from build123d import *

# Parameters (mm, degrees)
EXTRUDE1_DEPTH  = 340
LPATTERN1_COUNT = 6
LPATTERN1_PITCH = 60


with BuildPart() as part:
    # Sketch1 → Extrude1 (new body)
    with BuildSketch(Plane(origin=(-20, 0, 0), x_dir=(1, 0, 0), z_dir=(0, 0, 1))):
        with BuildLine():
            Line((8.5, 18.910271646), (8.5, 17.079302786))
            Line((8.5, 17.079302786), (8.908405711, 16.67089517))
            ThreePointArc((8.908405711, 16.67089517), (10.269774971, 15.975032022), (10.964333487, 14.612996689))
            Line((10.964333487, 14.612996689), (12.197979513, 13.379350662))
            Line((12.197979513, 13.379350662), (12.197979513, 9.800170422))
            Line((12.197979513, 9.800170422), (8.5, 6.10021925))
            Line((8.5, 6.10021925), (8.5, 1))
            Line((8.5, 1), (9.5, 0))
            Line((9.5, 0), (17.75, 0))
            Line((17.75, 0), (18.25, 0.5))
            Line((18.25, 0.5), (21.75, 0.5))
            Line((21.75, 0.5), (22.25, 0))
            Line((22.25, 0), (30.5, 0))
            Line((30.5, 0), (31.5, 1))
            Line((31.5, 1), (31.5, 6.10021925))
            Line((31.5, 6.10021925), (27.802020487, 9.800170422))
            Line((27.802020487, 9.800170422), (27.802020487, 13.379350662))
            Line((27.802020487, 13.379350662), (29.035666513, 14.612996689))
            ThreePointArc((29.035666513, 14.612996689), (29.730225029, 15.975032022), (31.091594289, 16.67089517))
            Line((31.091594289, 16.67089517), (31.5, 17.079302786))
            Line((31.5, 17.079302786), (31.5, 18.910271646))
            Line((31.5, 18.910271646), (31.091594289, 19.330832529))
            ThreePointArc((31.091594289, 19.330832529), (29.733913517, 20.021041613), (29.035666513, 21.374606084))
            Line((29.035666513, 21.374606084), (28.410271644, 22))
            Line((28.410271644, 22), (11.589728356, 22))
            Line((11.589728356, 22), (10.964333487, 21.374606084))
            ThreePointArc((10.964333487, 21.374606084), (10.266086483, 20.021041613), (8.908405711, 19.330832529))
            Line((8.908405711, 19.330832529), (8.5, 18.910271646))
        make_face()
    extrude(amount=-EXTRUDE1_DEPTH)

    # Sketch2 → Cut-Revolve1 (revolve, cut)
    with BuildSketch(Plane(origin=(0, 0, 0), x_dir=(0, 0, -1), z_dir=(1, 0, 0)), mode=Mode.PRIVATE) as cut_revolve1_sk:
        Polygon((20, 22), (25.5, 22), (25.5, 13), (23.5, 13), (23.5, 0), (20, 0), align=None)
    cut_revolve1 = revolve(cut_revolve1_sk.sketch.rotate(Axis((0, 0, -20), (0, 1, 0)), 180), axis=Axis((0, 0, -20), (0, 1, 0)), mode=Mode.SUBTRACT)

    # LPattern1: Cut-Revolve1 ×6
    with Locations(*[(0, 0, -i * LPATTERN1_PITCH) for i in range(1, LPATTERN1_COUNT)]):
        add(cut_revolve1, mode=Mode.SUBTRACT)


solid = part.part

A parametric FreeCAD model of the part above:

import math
import FreeCAD as App
import Part
import Sketcher

V = App.Vector


def add_polygon(sketch, points):
    """Adds a closed chain of lines whose ends are joined by coincident constraints."""
    first, n = sketch.GeometryCount, len(points)
    for a, b in zip(points, points[1:] + points[:1]):
        sketch.addGeometry(Part.LineSegment(App.Vector(*a, 0), App.Vector(*b, 0)), False)
    for i in range(n):
        sketch.addConstraint(Sketcher.Constraint("Coincident", first + i, 2, first + (i + 1) % n, 1))

doc = App.newDocument("Part")
body = doc.addObject("PartDesign::Body", "Body")

# Sketch on XY plane
sketch1 = body.newObject("Sketcher::SketchObject", "Sketch")
sketch1.AttachmentSupport = (doc.getObject("XY_Plane"), [""])
sketch1.MapMode = "FlatFace"
sketch1.addGeometry([
    Part.LineSegment(V(-11.5, 18.910272, 0), V(-11.5, 17.079303, 0)),  # 0
    Part.LineSegment(V(-11.5, 17.079303, 0), V(-11.091594, 16.670895, 0)),  # 1
    Part.ArcOfCircle(Part.Circle(V(-11.484689, 14.222248, 0), V(0, 0, 1), 2.48), math.radians(9.065302), math.radians(80.879803)),  # 2
    Part.LineSegment(V(-9.035667, 14.612997, 0), V(-7.80202, 13.379351, 0)),  # 3
    Part.LineSegment(V(-7.80202, 13.379351, 0), V(-7.80202, 9.80017, 0)),  # 4
    Part.LineSegment(V(-7.80202, 9.80017, 0), V(-11.5, 6.100219, 0)),  # 5
    Part.LineSegment(V(-11.5, 6.100219, 0), V(-11.5, 1, 0)),  # 6
    Part.LineSegment(V(-11.5, 1, 0), V(-10.5, 0, 0)),  # 7
    Part.LineSegment(V(-10.5, 0, 0), V(-2.25, 0, 0)),  # 8
    Part.LineSegment(V(-2.25, 0, 0), V(-1.75, 0.5, 0)),  # 9
    Part.LineSegment(V(-1.75, 0.5, 0), V(1.75, 0.5, 0)),  # 10
    Part.LineSegment(V(1.75, 0.5, 0), V(2.25, 0, 0)),  # 11
    Part.LineSegment(V(2.25, 0, 0), V(10.5, 0, 0)),  # 12
    Part.LineSegment(V(10.5, 0, 0), V(11.5, 1, 0)),  # 13
    Part.LineSegment(V(11.5, 1, 0), V(11.5, 6.100219, 0)),  # 14
    Part.LineSegment(V(11.5, 6.100219, 0), V(7.80202, 9.80017, 0)),  # 15
    Part.LineSegment(V(7.80202, 9.80017, 0), V(7.80202, 13.379351, 0)),  # 16
    Part.LineSegment(V(7.80202, 13.379351, 0), V(9.035667, 14.612997, 0)),  # 17
    Part.ArcOfCircle(Part.Circle(V(11.484689, 14.222248, 0), V(0, 0, 1), 2.48), math.radians(99.120197), math.radians(170.934698)),  # 18
    Part.LineSegment(V(11.091594, 16.670895, 0), V(11.5, 17.079303, 0)),  # 19
    Part.LineSegment(V(11.5, 17.079303, 0), V(11.5, 18.910272, 0)),  # 20
    Part.LineSegment(V(11.5, 18.910272, 0), V(11.091594, 19.330833, 0)),  # 21
    Part.ArcOfCircle(Part.Circle(V(11.482331, 21.779857, 0), V(0, 0, 1), 2.48), math.radians(-170.595249), math.radians(-99.065027)),  # 22
    Part.LineSegment(V(9.035667, 21.374606, 0), V(8.410272, 22, 0)),  # 23
    Part.LineSegment(V(8.410272, 22, 0), V(-8.410272, 22, 0)),  # 24
    Part.LineSegment(V(-8.410272, 22, 0), V(-9.035667, 21.374606, 0)),  # 25
    Part.ArcOfCircle(Part.Circle(V(-11.482331, 21.779857, 0), V(0, 0, 1), 2.48), math.radians(-80.934973), math.radians(-9.404751)),  # 26
    Part.LineSegment(V(-11.091594, 19.330833, 0), V(-11.5, 18.910272, 0)),  # 27
], False)
sketch1.addConstraint([
    Sketcher.Constraint("Coincident", 0, 2, 1, 1),
    Sketcher.Constraint("Coincident", 1, 2, 2, 2),
    Sketcher.Constraint("Coincident", 2, 1, 3, 1),
    Sketcher.Constraint("Coincident", 3, 2, 4, 1),
    Sketcher.Constraint("Coincident", 4, 2, 5, 1),
    Sketcher.Constraint("Coincident", 5, 2, 6, 1),
    Sketcher.Constraint("Coincident", 6, 2, 7, 1),
    Sketcher.Constraint("Coincident", 7, 2, 8, 1),
    Sketcher.Constraint("Coincident", 8, 2, 9, 1),
    Sketcher.Constraint("Coincident", 9, 2, 10, 1),
    Sketcher.Constraint("Coincident", 10, 2, 11, 1),
    Sketcher.Constraint("Coincident", 11, 2, 12, 1),
    Sketcher.Constraint("Coincident", 12, 2, 13, 1),
    Sketcher.Constraint("Coincident", 13, 2, 14, 1),
    Sketcher.Constraint("Coincident", 14, 2, 15, 1),
    Sketcher.Constraint("Coincident", 15, 2, 16, 1),
    Sketcher.Constraint("Coincident", 16, 2, 17, 1),
    Sketcher.Constraint("Coincident", 17, 2, 18, 2),
    Sketcher.Constraint("Coincident", 18, 1, 19, 1),
    Sketcher.Constraint("Coincident", 19, 2, 20, 1),
    Sketcher.Constraint("Coincident", 20, 2, 21, 1),
    Sketcher.Constraint("Coincident", 21, 2, 22, 2),
    Sketcher.Constraint("Coincident", 22, 1, 23, 1),
    Sketcher.Constraint("Coincident", 23, 2, 24, 1),
    Sketcher.Constraint("Coincident", 24, 2, 25, 1),
    Sketcher.Constraint("Coincident", 25, 2, 26, 2),
    Sketcher.Constraint("Coincident", 26, 1, 27, 1),
    Sketcher.Constraint("Coincident", 27, 2, 0, 1),
    Sketcher.Constraint("Vertical", 0),
    Sketcher.Constraint("Vertical", 4),
    Sketcher.Constraint("Vertical", 6),
    Sketcher.Constraint("Horizontal", 8),
    Sketcher.Constraint("Horizontal", 10),
    Sketcher.Constraint("Horizontal", 12),
    Sketcher.Constraint("Vertical", 14),
    Sketcher.Constraint("Vertical", 16),
    Sketcher.Constraint("Vertical", 20),
    Sketcher.Constraint("Horizontal", 24),
    Sketcher.Constraint("Equal", 2, 18),
    Sketcher.Constraint("Equal", 18, 22),
    Sketcher.Constraint("Equal", 22, 26),
    Sketcher.Constraint("Symmetric", 8, 2, 11, 2, -1, 1),
    Sketcher.Constraint("Symmetric", 2, 3, 18, 3, -2),
    Sketcher.Constraint("Symmetric", 22, 3, 26, 3, -2),
    Sketcher.Constraint("Symmetric", 7, 2, 12, 2, -2),
    Sketcher.Constraint("Symmetric", 6, 2, 13, 2, -2),
    Sketcher.Constraint("Symmetric", 4, 2, 15, 2, -2),
    Sketcher.Constraint("Symmetric", 0, 2, 19, 2, -2),
    Sketcher.Constraint("Parallel", 3, 7),
    Sketcher.Constraint("Perpendicular", 7, 9),
    Sketcher.Constraint("Perpendicular", 9, 11),
    Sketcher.Constraint("Perpendicular", 11, 13),
    Sketcher.Constraint("Parallel", 13, 17),
    Sketcher.Constraint("Perpendicular", 19, 23),
    Sketcher.Constraint("Perpendicular", 23, 25),
    Sketcher.Constraint("Horizontal", 5, 2, 14, 2),
    Sketcher.Constraint("Horizontal", 3, 2, 16, 2),
    Sketcher.Constraint("Horizontal", 1, 2, 18, 1),
    Sketcher.Constraint("Horizontal", 22, 1, 25, 2),
    Sketcher.Constraint("Horizontal", 21, 2, 26, 1),
    Sketcher.Constraint("Horizontal", 20, 2, 27, 2),
    Sketcher.Constraint("Vertical", 0, 2, 5, 2),
    Sketcher.Constraint("Vertical", 18, 1, 21, 2),
    Sketcher.Constraint("Vertical", 17, 2, 22, 1),
    Sketcher.Constraint("Equal", 23, 25),
    Sketcher.Constraint("Radius", 2, 2.48),
    Sketcher.Constraint("DistanceX", 10, 1, 10, 2, 3.5),
    Sketcher.Constraint("DistanceY", -1, 1, 6, 2, 1.0),
    Sketcher.Constraint("DistanceY", -1, 1, 23, 2, 22.0),
    Sketcher.Constraint("DistanceX", 8, 2, 10, 2, 4.0),
    Sketcher.Constraint("DistanceX", 8, 1, 8, 2, 8.25),
    Sketcher.Constraint("DistanceY", 0, 2, 0, 1, 1.830969),
    Sketcher.Constraint("DistanceY", 4, 2, 4, 1, 3.57918),
    Sketcher.Constraint("DistanceY", 6, 2, 6, 1, 5.100219),
    Sketcher.Constraint("DistanceY", 2, 1, 1, 2, 2.057898),
    Sketcher.Constraint("Distance", 3, 1.744639),
    Sketcher.Constraint("Distance", 21, 0.586231),
    Sketcher.Constraint("Distance", 23, 0.884441),
    Sketcher.Constraint("DistanceX", 24, 2, 24, 1, 16.820543),
    Sketcher.Constraint("DistanceX", 2, 3, -1, 1, 11.484689),
    Sketcher.Constraint("DistanceX", -1, 1, 22, 3, 11.482331),
])
pad1 = body.newObject("PartDesign::Pad", "Pad")
pad1.Profile = sketch1
pad1.Length = 340
pad1.Reversed = True

# Sketch on YZ plane
sketch2 = body.newObject("Sketcher::SketchObject", "Sketch001")
sketch2.AttachmentSupport = (doc.getObject("YZ_Plane"), [""])
sketch2.MapMode = "FlatFace"
add_polygon(sketch2, [(22, -25.5), (22, -20), (0, -20), (0, -23.5), (13, -23.5), (13, -25.5)])  # lines 0-5
sketch2.addGeometry(Part.LineSegment(V(0, -20, 0), V(22, -20, 0)), True)  # axis
sketch2.addConstraint([
    Sketcher.Constraint("Vertical", 0),
    Sketcher.Constraint("Horizontal", 1),
    Sketcher.Constraint("Vertical", 2),
    Sketcher.Constraint("Horizontal", 3),
    Sketcher.Constraint("Vertical", 4),
    Sketcher.Constraint("Horizontal", 5),
    Sketcher.Constraint("Horizontal", 6),
    Sketcher.Constraint("Coincident", 6, 1, 1, 2),
    Sketcher.Constraint("PointOnObject", 1, 2, -2),
    Sketcher.Constraint("Vertical", 5, 2, 6, 2),
    Sketcher.Constraint("DistanceX", 1, 2, 1, 1, 22.0),
    Sketcher.Constraint("DistanceX", 3, 1, 3, 2, 13.0),
    Sketcher.Constraint("DistanceY", 4, 2, 4, 1, 2.0),
    Sketcher.Constraint("DistanceY", 0, 1, 0, 2, 5.5),
    Sketcher.Constraint("DistanceY", 0, 2, -1, 1, 20.0),
])
groove = body.newObject("PartDesign::Groove", "Groove")
groove.Profile = sketch2
groove.ReferenceAxis = (sketch2, ["Axis0"])
groove.Angle = 360
doc.recompute()

linearpattern = body.newObject("PartDesign::LinearPattern", "LinearPattern")
linearpattern.Originals = [groove]
linearpattern.Direction = (doc.getObject("Z_Axis"), [""])
linearpattern.Mode = "offset"
linearpattern.Offset = 60
linearpattern.Occurrences = 6
linearpattern.Reversed = True
body.Tip = linearpattern

doc.recompute()
